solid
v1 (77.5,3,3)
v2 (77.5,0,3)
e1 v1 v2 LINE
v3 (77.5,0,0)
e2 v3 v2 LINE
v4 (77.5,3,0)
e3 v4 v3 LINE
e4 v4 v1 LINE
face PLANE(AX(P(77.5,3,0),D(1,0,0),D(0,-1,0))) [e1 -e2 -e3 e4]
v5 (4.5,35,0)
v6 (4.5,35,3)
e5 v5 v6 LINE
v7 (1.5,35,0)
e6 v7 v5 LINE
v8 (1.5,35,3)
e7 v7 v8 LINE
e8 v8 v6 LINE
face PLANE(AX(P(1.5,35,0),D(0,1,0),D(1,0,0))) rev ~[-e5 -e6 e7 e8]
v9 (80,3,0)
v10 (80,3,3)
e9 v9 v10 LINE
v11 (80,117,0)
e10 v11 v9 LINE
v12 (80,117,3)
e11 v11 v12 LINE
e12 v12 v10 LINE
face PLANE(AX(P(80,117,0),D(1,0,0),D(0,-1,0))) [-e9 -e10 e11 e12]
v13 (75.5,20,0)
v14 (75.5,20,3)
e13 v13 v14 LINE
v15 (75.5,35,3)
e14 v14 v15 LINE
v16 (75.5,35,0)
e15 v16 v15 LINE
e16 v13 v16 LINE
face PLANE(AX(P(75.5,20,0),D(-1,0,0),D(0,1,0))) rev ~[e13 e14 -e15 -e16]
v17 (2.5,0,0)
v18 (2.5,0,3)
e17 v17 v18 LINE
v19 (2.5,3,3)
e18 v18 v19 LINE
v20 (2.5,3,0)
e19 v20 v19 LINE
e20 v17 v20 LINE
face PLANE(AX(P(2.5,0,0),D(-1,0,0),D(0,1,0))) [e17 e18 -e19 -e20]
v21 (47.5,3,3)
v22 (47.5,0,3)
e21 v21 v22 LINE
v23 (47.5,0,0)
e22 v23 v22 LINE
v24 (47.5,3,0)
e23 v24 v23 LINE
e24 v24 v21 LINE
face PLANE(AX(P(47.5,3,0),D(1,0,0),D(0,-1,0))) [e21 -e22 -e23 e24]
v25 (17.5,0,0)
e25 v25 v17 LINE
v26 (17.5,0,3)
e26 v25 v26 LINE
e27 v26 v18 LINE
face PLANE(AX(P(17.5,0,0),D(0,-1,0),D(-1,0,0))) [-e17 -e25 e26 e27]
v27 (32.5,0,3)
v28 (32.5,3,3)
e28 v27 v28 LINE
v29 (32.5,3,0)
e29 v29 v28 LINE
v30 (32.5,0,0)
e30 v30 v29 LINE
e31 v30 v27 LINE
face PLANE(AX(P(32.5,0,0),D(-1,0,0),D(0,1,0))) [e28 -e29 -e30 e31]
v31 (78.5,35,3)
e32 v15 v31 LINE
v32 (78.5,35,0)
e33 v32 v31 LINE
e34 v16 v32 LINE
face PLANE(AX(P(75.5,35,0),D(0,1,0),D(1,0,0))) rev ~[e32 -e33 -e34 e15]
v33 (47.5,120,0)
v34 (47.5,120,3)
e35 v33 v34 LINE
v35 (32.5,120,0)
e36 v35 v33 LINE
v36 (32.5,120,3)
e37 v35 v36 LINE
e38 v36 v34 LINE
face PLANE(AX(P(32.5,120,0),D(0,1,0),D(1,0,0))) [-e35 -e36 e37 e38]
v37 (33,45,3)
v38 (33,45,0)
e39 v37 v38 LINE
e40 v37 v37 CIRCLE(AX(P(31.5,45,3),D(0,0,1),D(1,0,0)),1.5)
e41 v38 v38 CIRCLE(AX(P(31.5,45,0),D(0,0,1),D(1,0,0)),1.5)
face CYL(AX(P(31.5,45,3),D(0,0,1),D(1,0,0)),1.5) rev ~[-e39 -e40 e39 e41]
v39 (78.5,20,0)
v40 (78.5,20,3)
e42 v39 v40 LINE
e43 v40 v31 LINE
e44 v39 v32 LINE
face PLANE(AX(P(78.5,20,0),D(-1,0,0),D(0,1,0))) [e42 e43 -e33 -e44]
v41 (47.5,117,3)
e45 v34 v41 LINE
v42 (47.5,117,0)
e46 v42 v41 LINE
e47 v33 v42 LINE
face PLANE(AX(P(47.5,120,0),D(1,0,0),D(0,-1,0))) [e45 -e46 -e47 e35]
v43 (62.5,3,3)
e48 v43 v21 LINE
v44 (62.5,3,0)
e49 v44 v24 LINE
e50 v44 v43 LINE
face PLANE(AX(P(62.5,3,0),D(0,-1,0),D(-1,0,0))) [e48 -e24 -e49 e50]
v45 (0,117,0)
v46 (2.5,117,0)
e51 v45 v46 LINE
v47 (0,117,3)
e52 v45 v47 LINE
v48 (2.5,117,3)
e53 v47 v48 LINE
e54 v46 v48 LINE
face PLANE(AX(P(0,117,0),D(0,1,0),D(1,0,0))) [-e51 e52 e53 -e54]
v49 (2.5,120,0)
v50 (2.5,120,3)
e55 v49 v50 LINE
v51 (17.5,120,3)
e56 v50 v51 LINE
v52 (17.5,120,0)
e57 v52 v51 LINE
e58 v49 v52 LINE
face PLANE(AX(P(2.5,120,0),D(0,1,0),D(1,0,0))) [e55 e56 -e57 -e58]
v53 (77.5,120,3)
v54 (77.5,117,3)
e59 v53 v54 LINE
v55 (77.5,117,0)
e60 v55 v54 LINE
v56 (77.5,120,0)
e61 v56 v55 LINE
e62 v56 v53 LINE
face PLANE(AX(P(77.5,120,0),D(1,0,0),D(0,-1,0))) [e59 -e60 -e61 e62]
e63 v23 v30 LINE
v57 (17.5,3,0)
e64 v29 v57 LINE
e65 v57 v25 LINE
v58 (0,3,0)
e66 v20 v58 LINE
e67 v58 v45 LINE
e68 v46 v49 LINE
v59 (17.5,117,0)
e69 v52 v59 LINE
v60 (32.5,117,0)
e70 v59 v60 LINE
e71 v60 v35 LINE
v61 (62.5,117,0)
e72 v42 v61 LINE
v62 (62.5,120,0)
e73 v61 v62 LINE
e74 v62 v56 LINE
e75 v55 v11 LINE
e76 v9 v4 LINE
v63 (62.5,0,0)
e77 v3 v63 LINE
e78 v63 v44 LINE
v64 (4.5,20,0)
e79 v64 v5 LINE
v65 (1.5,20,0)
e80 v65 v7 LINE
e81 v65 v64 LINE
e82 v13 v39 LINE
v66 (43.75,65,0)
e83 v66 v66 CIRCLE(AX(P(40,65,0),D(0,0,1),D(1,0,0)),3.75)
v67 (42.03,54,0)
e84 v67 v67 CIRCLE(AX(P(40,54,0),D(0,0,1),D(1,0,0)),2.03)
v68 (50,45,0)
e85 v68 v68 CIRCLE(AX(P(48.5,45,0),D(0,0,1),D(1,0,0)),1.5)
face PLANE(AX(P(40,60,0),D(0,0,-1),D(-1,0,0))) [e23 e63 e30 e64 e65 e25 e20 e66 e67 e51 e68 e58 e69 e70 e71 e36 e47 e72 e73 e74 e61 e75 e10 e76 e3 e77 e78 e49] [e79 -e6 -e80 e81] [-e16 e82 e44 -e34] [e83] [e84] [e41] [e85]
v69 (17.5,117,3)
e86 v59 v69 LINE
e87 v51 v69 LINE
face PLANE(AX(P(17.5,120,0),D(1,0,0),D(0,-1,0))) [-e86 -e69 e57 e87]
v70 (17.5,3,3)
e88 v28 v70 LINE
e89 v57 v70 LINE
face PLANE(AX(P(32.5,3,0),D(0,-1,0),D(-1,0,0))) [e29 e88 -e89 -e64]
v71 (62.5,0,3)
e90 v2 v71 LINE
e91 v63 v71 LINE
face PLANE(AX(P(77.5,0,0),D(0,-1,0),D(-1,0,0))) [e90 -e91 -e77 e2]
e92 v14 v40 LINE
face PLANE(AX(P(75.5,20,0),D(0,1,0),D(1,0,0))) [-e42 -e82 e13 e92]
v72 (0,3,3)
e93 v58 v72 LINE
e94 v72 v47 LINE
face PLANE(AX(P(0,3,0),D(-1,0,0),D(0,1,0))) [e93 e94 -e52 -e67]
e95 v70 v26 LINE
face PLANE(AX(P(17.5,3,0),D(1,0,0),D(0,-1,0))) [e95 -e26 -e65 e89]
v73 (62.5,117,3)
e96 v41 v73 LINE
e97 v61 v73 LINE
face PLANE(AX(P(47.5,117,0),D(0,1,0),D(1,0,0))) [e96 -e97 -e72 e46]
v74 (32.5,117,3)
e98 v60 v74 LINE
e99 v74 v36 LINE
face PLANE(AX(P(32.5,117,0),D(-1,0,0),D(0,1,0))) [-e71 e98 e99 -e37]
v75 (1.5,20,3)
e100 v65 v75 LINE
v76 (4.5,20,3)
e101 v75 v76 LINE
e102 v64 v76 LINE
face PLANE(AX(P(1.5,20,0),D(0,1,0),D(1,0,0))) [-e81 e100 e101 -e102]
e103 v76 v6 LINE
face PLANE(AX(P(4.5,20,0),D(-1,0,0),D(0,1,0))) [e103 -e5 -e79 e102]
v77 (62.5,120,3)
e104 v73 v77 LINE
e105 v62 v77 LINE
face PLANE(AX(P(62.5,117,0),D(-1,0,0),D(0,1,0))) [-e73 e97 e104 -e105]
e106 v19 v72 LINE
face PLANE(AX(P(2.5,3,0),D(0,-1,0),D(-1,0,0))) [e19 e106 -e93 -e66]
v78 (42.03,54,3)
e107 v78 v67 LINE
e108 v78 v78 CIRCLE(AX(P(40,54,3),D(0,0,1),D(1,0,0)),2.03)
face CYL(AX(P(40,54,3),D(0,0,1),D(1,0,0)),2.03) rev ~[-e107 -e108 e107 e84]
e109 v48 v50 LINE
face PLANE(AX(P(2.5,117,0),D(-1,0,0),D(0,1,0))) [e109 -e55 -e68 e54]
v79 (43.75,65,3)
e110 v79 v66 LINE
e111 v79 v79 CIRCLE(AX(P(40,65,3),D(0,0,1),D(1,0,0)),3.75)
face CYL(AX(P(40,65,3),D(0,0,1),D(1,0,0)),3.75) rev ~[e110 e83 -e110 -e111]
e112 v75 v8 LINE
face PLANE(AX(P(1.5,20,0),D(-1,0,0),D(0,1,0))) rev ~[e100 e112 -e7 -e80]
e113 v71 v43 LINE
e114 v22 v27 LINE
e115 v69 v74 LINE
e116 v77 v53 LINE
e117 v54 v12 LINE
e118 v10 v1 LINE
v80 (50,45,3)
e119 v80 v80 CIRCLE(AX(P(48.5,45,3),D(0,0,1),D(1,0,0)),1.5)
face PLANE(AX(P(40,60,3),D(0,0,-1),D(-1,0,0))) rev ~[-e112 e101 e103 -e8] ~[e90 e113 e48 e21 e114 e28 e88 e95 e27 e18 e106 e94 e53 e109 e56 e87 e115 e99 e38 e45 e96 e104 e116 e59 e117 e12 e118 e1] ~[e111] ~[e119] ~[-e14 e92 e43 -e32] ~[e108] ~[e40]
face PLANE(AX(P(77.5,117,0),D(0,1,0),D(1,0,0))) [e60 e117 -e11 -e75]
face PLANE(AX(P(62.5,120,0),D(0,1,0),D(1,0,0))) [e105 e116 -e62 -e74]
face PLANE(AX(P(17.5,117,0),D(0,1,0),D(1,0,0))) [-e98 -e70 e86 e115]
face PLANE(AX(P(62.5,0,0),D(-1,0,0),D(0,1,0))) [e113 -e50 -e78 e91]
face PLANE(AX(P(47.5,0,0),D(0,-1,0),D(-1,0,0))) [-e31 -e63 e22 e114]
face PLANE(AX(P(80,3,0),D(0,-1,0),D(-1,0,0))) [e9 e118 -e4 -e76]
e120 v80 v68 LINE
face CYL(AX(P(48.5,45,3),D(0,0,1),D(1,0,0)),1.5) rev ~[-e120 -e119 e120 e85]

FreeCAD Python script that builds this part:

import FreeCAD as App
import Part
import Sketcher


def add_polygon(sketch, points):
    """Adds a closed chain of lines whose ends are joined by coincident constraints."""
    first, n = sketch.GeometryCount, len(points)
    for a, b in zip(points, points[1:] + points[:1]):
        sketch.addGeometry(Part.LineSegment(App.Vector(*a, 0), App.Vector(*b, 0)), False)
    for i in range(n):
        sketch.addConstraint(Sketcher.Constraint("Coincident", first + i, 2, first + (i + 1) % n, 1))

doc = App.newDocument("Part")
body = doc.addObject("PartDesign::Body", "Body")

# Sketch on XY plane
sketch1 = body.newObject("Sketcher::SketchObject", "Sketch")
sketch1.AttachmentSupport = (doc.getObject("XY_Plane"), [""])
sketch1.MapMode = "FlatFace"
add_polygon(sketch1, [(0, 3), (2.5, 3), (2.5, 0), (17.5, 0), (17.5, 3), (32.5, 3), (32.5, 0), (47.5, 0), (47.5, 3), (62.5, 3), (62.5, 0), (77.5, 0), (77.5, 3), (80, 3), (80, 117), (77.5, 117), (77.5, 120), (62.5, 120), (62.5, 117), (47.5, 117), (47.5, 120), (32.5, 120), (32.5, 117), (17.5, 117), (17.5, 120), (2.5, 120), (2.5, 117), (0, 117)])  # lines 0-27
add_polygon(sketch1, [(75.5, 20), (75.5, 35), (78.5, 35), (78.5, 20)])  # lines 28-31
add_polygon(sketch1, [(1.5, 20), (1.5, 35), (4.5, 35), (4.5, 20)])  # lines 32-35
sketch1.addConstraint([
    Sketcher.Constraint("Horizontal", 0),
    Sketcher.Constraint("Vertical", 1),
    Sketcher.Constraint("Horizontal", 2),
    Sketcher.Constraint("Vertical", 3),
    Sketcher.Constraint("Horizontal", 4),
    Sketcher.Constraint("Vertical", 5),
    Sketcher.Constraint("Horizontal", 6),
    Sketcher.Constraint("Vertical", 7),
    Sketcher.Constraint("Horizontal", 8),
    Sketcher.Constraint("Vertical", 9),
    Sketcher.Constraint("Horizontal", 10),
    Sketcher.Constraint("Vertical", 11),
    Sketcher.Constraint("Horizontal", 12),
    Sketcher.Constraint("Vertical", 13),
    Sketcher.Constraint("Horizontal", 14),
    Sketcher.Constraint("Vertical", 15),
    Sketcher.Constraint("Horizontal", 16),
    Sketcher.Constraint("Vertical", 17),
    Sketcher.Constraint("Horizontal", 18),
    Sketcher.Constraint("Vertical", 19),
    Sketcher.Constraint("Horizontal", 20),
    Sketcher.Constraint("Vertical", 21),
    Sketcher.Constraint("Horizontal", 22),
    Sketcher.Constraint("Vertical", 23),
    Sketcher.Constraint("Horizontal", 24),
    Sketcher.Constraint("Vertical", 25),
    Sketcher.Constraint("Horizontal", 26),
    Sketcher.Constraint("Vertical", 27),
    Sketcher.Constraint("Vertical", 28),
    Sketcher.Constraint("Horizontal", 29),
    Sketcher.Constraint("Vertical", 30),
    Sketcher.Constraint("Horizontal", 31),
    Sketcher.Constraint("Vertical", 32),
    Sketcher.Constraint("Horizontal", 33),
    Sketcher.Constraint("Vertical", 34),
    Sketcher.Constraint("Horizontal", 35),
    Sketcher.Constraint("PointOnObject", 1, 2, -1),
    Sketcher.Constraint("PointOnObject", 5, 2, -1),
    Sketcher.Constraint("PointOnObject", 9, 2, -1),
    Sketcher.Constraint("PointOnObject", 26, 2, -2),
    Sketcher.Constraint("Horizontal", 0, 2, 3, 2),
    Sketcher.Constraint("Horizontal", 4, 2, 7, 2),
    Sketcher.Constraint("Horizontal", 8, 2, 11, 2),
    Sketcher.Constraint("Horizontal", 14, 2, 17, 2),
    Sketcher.Constraint("Horizontal", 16, 2, 19, 2),
    Sketcher.Constraint("Horizontal", 18, 2, 21, 2),
    Sketcher.Constraint("Horizontal", 20, 2, 23, 2),
    Sketcher.Constraint("Horizontal", 22, 2, 25, 2),
    Sketcher.Constraint("Horizontal", 29, 2, 32, 2),
    Sketcher.Constraint("Horizontal", 31, 2, 34, 2),
    Sketcher.Constraint("Vertical", 11, 2, 14, 2),
    Sketcher.Constraint("Vertical", 9, 2, 16, 2),
    Sketcher.Constraint("Vertical", 7, 2, 18, 2),
    Sketcher.Constraint("Vertical", 5, 2, 20, 2),
    Sketcher.Constraint("Vertical", 3, 2, 22, 2),
    Sketcher.Constraint("Vertical", 1, 2, 24, 2),
    Sketcher.Constraint("Equal", 2, 4),
    Sketcher.Constraint("Equal", 4, 6),
    Sketcher.Constraint("Equal", 6, 8),
    Sketcher.Constraint("Equal", 8, 10),
    Sketcher.Constraint("Equal", 0, 12),
    Sketcher.Constraint("Equal", 31, 33),
    Sketcher.Constraint("Equal", 35, 1),
    Sketcher.Constraint("Equal", 11, 15),
    Sketcher.Constraint("Equal", 24, 28),
    Sketcher.Constraint("DistanceX", 2, 1, 2, 2, 15.0),
    Sketcher.Constraint("DistanceX", 29, 1, 29, 2, 3.0),
    Sketcher.Constraint("DistanceY", 13, 1, 13, 2, 114.0),
    Sketcher.Constraint("DistanceX", 0, 1, 0, 2, 2.5),
    Sketcher.Constraint("DistanceY", -1, 1, 28, 2, 35.0),
    Sketcher.Constraint("DistanceX", 28, 2, 11, 2, 2.0),
    Sketcher.Constraint("DistanceX", 32, 2, 0, 2, 1.0),
])
pad1 = body.newObject("PartDesign::Pad", "Pad")
pad1.Profile = sketch1
pad1.Length = 3

# Sketch on XY plane
sketch2 = body.newObject("Sketcher::SketchObject", "Sketch001")
sketch2.AttachmentSupport = (doc.getObject("XY_Plane"), [""])
sketch2.MapMode = "FlatFace"
sketch2.AttachmentOffset = App.Placement(App.Vector(0, 0, 3), App.Rotation())
sketch2.addGeometry([
    Part.Circle(App.Vector(31.5, 45, 0), App.Vector(0, 0, 1), 1.5),
    Part.Circle(App.Vector(48.5, 45, 0), App.Vector(0, 0, 1), 1.5),
    Part.Circle(App.Vector(40, 54, 0), App.Vector(0, 0, 1), 2),
    Part.Circle(App.Vector(40, 65, 0), App.Vector(0, 0, 1), 3.8),
], False)
sketch2.addConstraint([
    Sketcher.Constraint("Equal", 0, 1),
    Sketcher.Constraint("Horizontal", 0, 3, 1, 3),
    Sketcher.Constraint("Vertical", 2, 3, 3, 3),
    Sketcher.Constraint("Diameter", 0, 3.0),
    Sketcher.Constraint("Diameter", 3, 7.5),
    Sketcher.Constraint("Diameter", 2, 4.06),
    Sketcher.Constraint("DistanceY", -1, 1, 0, 3, 45.0),
    Sketcher.Constraint("DistanceX", -1, 1, 2, 3, 40.0),
    Sketcher.Constraint("DistanceY", -1, 1, 2, 3, 54.0),
    Sketcher.Constraint("DistanceY", -1, 1, 3, 3, 65.0),
    Sketcher.Constraint("DistanceX", 0, 3, 1, 3, 17.0),
    Sketcher.Constraint("DistanceX", -1, 1, 0, 3, 31.5),
])
pocket1 = body.newObject("PartDesign::Pocket", "Pocket")
pocket1.Profile = sketch2
pocket1.Length = 10

doc.recompute()
